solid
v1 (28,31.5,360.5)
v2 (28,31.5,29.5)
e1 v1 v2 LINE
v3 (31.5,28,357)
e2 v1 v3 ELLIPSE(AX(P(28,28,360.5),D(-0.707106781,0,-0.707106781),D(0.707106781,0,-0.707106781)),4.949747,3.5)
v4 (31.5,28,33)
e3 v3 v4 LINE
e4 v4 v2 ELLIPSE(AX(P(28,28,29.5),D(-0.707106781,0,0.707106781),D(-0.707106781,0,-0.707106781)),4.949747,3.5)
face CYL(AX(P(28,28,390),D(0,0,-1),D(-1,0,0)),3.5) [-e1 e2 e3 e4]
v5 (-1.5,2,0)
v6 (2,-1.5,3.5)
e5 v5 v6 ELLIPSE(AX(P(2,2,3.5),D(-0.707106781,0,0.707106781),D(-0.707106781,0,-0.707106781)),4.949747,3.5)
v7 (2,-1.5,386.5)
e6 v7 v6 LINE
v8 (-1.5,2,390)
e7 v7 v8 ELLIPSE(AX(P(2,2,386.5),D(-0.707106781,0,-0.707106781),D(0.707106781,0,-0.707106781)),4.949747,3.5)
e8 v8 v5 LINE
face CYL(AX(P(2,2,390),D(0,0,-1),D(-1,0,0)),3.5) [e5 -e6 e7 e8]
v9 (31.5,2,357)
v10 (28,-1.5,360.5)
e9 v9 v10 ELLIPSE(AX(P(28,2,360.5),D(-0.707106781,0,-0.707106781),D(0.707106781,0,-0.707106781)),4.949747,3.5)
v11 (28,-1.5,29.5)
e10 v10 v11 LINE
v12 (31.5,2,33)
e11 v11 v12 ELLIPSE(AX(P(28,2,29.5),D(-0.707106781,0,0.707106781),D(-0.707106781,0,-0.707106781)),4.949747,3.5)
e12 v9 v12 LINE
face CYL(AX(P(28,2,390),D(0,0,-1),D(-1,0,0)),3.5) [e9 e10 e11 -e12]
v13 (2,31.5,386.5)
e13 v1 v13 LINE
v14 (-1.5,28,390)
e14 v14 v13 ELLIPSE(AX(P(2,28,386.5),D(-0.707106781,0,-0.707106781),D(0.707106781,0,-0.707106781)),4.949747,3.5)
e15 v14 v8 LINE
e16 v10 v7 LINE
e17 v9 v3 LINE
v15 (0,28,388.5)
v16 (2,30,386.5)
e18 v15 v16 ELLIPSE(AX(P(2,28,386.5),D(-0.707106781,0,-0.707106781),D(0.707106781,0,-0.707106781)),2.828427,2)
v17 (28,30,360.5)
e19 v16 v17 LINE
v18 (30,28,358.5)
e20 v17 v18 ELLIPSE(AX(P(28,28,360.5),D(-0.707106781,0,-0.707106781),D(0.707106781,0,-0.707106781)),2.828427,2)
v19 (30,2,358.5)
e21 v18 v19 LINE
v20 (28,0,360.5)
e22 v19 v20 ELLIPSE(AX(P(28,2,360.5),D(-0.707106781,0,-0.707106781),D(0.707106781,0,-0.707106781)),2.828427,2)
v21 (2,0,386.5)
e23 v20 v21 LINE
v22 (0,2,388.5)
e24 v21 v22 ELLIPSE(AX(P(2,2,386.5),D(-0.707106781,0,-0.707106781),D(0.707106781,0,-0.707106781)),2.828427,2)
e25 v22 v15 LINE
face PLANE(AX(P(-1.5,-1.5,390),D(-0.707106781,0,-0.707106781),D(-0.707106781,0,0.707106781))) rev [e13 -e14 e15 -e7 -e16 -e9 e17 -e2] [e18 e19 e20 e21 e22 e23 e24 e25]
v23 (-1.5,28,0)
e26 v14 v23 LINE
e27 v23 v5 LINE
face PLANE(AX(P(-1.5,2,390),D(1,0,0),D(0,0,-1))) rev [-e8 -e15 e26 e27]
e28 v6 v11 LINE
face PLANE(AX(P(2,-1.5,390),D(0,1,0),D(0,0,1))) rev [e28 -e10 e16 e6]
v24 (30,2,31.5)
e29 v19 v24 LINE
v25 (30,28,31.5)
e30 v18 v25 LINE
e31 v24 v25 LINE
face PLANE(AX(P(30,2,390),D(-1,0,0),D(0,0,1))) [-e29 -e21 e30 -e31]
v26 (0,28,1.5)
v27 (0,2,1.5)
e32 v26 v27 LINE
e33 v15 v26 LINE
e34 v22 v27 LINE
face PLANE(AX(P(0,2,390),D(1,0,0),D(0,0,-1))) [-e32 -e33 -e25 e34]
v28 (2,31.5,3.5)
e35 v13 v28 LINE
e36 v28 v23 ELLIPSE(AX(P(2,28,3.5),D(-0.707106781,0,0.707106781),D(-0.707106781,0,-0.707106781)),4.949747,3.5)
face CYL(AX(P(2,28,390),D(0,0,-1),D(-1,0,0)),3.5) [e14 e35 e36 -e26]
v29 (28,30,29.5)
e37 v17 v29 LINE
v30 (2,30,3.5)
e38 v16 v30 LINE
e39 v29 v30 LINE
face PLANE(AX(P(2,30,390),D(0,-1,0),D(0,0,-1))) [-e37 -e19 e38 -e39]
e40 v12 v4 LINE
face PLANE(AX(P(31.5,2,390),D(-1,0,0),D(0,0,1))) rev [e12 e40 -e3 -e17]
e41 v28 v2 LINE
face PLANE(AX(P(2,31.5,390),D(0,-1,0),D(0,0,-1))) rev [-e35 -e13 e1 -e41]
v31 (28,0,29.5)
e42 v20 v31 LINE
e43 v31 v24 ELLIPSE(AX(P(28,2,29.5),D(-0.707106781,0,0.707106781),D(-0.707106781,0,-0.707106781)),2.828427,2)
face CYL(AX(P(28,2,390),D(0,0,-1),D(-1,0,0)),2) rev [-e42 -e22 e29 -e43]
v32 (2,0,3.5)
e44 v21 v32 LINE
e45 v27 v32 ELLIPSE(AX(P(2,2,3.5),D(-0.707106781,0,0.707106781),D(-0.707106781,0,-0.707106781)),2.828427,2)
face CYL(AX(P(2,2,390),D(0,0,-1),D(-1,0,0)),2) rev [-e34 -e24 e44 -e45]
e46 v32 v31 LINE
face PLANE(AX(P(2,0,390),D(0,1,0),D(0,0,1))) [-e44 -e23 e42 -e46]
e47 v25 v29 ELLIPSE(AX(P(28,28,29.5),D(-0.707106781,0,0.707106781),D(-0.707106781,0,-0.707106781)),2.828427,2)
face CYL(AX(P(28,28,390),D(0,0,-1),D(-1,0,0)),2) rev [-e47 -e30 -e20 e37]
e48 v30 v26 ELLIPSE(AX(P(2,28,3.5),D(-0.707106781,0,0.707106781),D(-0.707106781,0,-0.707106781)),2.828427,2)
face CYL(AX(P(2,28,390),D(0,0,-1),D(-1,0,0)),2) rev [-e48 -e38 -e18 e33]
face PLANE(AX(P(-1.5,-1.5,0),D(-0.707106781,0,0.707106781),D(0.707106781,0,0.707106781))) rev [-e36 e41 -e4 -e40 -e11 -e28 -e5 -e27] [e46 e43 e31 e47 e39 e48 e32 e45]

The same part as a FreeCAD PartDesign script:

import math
import FreeCAD as App
import Part
import Sketcher
from FreeCAD import Vector
Q = App.Units.Quantity


def add_polygon(sketch, points):
    """Adds a closed chain of lines whose ends are joined by coincident constraints."""
    first, n = sketch.GeometryCount, len(points)
    for a, b in zip(points, points[1:] + points[:1]):
        sketch.addGeometry(Part.LineSegment(App.Vector(*a, 0), App.Vector(*b, 0)), False)
    for i in range(n):
        sketch.addConstraint(Sketcher.Constraint("Coincident", first + i, 2, first + (i + 1) % n, 1))

doc = App.newDocument("Part")
body = doc.addObject("PartDesign::Body", "Body")

# Sketch on XY plane
sketch1 = body.newObject("Sketcher::SketchObject", "Sketch")
sketch1.AttachmentSupport = (doc.getObject("XY_Plane"), [""])
sketch1.MapMode = "FlatFace"
sketch1.addGeometry(Part.LineSegment(Vector(2, -1.5, 0), Vector(28, -1.5, 0)), False)
sketch1.addGeometry(Part.ArcOfCircle(Part.Circle(Vector(28, 2, 0), Vector(0, 0, 1), 3.5), math.radians(-90), math.radians(0)), False)
sketch1.addGeometry(Part.LineSegment(Vector(31.5, 2, 0), Vector(31.5, 28, 0)), False)
sketch1.addGeometry(Part.ArcOfCircle(Part.Circle(Vector(28, 28, 0), Vector(0, 0, 1), 3.5), math.radians(0), math.radians(90)), False)
sketch1.addGeometry(Part.LineSegment(Vector(28, 31.5, 0), Vector(2, 31.5, 0)), False)
sketch1.addGeometry(Part.ArcOfCircle(Part.Circle(Vector(2, 28, 0), Vector(0, 0, 1), 3.5), math.radians(90), math.radians(180)), False)
sketch1.addGeometry(Part.LineSegment(Vector(-1.5, 28, 0), Vector(-1.5, 2, 0)), False)
sketch1.addGeometry(Part.ArcOfCircle(Part.Circle(Vector(2, 2, 0), Vector(0, 0, 1), 3.5), math.radians(-180), math.radians(-90)), False)
sketch1.addGeometry(Part.LineSegment(Vector(28, 0, 0), Vector(2, 0, 0)), False)
sketch1.addGeometry(Part.ArcOfCircle(Part.Circle(Vector(2, 2, 0), Vector(0, 0, 1), 2), math.radians(-180), math.radians(-90)), False)
sketch1.addGeometry(Part.LineSegment(Vector(0, 2, 0), Vector(0, 28, 0)), False)
sketch1.addGeometry(Part.ArcOfCircle(Part.Circle(Vector(2, 28, 0), Vector(0, 0, 1), 2), math.radians(90), math.radians(180)), False)
sketch1.addGeometry(Part.LineSegment(Vector(2, 30, 0), Vector(28, 30, 0)), False)
sketch1.addGeometry(Part.ArcOfCircle(Part.Circle(Vector(28, 28, 0), Vector(0, 0, 1), 2), math.radians(0), math.radians(90)), False)
sketch1.addGeometry(Part.LineSegment(Vector(30, 28, 0), Vector(30, 2, 0)), False)
sketch1.addGeometry(Part.ArcOfCircle(Part.Circle(Vector(28, 2, 0), Vector(0, 0, 1), 2), math.radians(-90), math.radians(0)), False)
sketch1.addConstraint(Sketcher.Constraint("Tangent", 0, 2, 1, 1))
sketch1.addConstraint(Sketcher.Constraint("Tangent", 1, 2, 2, 1))
sketch1.addConstraint(Sketcher.Constraint("Tangent", 2, 2, 3, 1))
sketch1.addConstraint(Sketcher.Constraint("Tangent", 3, 2, 4, 1))
sketch1.addConstraint(Sketcher.Constraint("Tangent", 4, 2, 5, 1))
sketch1.addConstraint(Sketcher.Constraint("Tangent", 5, 2, 6, 1))
sketch1.addConstraint(Sketcher.Constraint("Tangent", 6, 2, 7, 1))
sketch1.addConstraint(Sketcher.Constraint("Tangent", 7, 2, 0, 1))
sketch1.addConstraint(Sketcher.Constraint("Tangent", 8, 2, 9, 2))
sketch1.addConstraint(Sketcher.Constraint("Tangent", 9, 1, 10, 1))
sketch1.addConstraint(Sketcher.Constraint("Tangent", 10, 2, 11, 2))
sketch1.addConstraint(Sketcher.Constraint("Tangent", 11, 1, 12, 1))
sketch1.addConstraint(Sketcher.Constraint("Tangent", 12, 2, 13, 2))
sketch1.addConstraint(Sketcher.Constraint("Tangent", 13, 1, 14, 1))
sketch1.addConstraint(Sketcher.Constraint("Tangent", 14, 2, 15, 2))
sketch1.addConstraint(Sketcher.Constraint("Tangent", 15, 1, 8, 1))
sketch1.addConstraint(Sketcher.Constraint("Horizontal", 0))
sketch1.addConstraint(Sketcher.Constraint("Vertical", 2))
sketch1.addConstraint(Sketcher.Constraint("Horizontal", 4))
sketch1.addConstraint(Sketcher.Constraint("Vertical", 6))
sketch1.addConstraint(Sketcher.Constraint("Horizontal", 8))
sketch1.addConstraint(Sketcher.Constraint("Vertical", 10))
sketch1.addConstraint(Sketcher.Constraint("Horizontal", 12))
sketch1.addConstraint(Sketcher.Constraint("Vertical", 14))
sketch1.addConstraint(Sketcher.Constraint("Coincident", 9, 3, 7, 3))
sketch1.addConstraint(Sketcher.Constraint("Coincident", 11, 3, 5, 3))
sketch1.addConstraint(Sketcher.Constraint("Coincident", 13, 3, 3, 3))
sketch1.addConstraint(Sketcher.Constraint("Equal", 1, 3))
sketch1.addConstraint(Sketcher.Constraint("Equal", 3, 5))
sketch1.addConstraint(Sketcher.Constraint("Equal", 5, 7))
sketch1.addConstraint(Sketcher.Constraint("Equal", 13, 15))
sketch1.addConstraint(Sketcher.Constraint("PointOnObject", 8, 2, -1))
sketch1.addConstraint(Sketcher.Constraint("PointOnObject", 9, 1, -2))
sketch1.addConstraint(Sketcher.Constraint("Equal", 12, 2))
sketch1.addConstraint(Sketcher.Constraint("Radius", 9, Q("2 mm")))
sketch1.addConstraint(Sketcher.Constraint("Radius", 1, Q("3.5 mm")))
sketch1.addConstraint(Sketcher.Constraint("DistanceX", 0, 1, 0, 2, Q("26 mm")))
pad1 = body.newObject("PartDesign::Pad", "Pad")
pad1.Profile = sketch1
pad1.Length = 390

# Sketch on XZ plane
sketch2 = body.newObject("Sketcher::SketchObject", "Sketch001")
sketch2.AttachmentSupport = (doc.getObject("XZ_Plane"), [""])
sketch2.MapMode = "FlatFace"
sketch2.AttachmentOffset = App.Placement(Vector(0, 0, -31.5), App.Rotation())
add_polygon(sketch2, [(-1.5, 0), (31.5, 33), (31.5, 0)])  # lines 0-2
add_polygon(sketch2, [(31.5, 357), (-1.5, 390), (31.5, 390)])  # lines 3-5
sketch2.addConstraint(Sketcher.Constraint("Vertical", 1))
sketch2.addConstraint(Sketcher.Constraint("Horizontal", 2))
sketch2.addConstraint(Sketcher.Constraint("Horizontal", 4))
sketch2.addConstraint(Sketcher.Constraint("Vertical", 5))
sketch2.addConstraint(Sketcher.Constraint("PointOnObject", 1, 2, -1))
sketch2.addConstraint(Sketcher.Constraint("Perpendicular", 0, 3))
sketch2.addConstraint(Sketcher.Constraint("Vertical", 2, 2, 3, 2))
sketch2.addConstraint(Sketcher.Constraint("Vertical", 1, 2, 4, 2))
sketch2.addConstraint(Sketcher.Constraint("Equal", 4, 1))
sketch2.addConstraint(Sketcher.Constraint("DistanceX", 2, 2, 2, 1, Q("33 mm")))
sketch2.addConstraint(Sketcher.Constraint("DistanceY", -1, 1, 3, 2, Q("390 mm")))
sketch2.addConstraint(Sketcher.Constraint("DistanceX", -1, 1, 0, 2, Q("31.5 mm")))
pocket1 = body.newObject("PartDesign::Pocket", "Pocket")
pocket1.Profile = sketch2
pocket1.Type = "ThroughAll"
pocket1.Reversed = True

doc.recompute()
